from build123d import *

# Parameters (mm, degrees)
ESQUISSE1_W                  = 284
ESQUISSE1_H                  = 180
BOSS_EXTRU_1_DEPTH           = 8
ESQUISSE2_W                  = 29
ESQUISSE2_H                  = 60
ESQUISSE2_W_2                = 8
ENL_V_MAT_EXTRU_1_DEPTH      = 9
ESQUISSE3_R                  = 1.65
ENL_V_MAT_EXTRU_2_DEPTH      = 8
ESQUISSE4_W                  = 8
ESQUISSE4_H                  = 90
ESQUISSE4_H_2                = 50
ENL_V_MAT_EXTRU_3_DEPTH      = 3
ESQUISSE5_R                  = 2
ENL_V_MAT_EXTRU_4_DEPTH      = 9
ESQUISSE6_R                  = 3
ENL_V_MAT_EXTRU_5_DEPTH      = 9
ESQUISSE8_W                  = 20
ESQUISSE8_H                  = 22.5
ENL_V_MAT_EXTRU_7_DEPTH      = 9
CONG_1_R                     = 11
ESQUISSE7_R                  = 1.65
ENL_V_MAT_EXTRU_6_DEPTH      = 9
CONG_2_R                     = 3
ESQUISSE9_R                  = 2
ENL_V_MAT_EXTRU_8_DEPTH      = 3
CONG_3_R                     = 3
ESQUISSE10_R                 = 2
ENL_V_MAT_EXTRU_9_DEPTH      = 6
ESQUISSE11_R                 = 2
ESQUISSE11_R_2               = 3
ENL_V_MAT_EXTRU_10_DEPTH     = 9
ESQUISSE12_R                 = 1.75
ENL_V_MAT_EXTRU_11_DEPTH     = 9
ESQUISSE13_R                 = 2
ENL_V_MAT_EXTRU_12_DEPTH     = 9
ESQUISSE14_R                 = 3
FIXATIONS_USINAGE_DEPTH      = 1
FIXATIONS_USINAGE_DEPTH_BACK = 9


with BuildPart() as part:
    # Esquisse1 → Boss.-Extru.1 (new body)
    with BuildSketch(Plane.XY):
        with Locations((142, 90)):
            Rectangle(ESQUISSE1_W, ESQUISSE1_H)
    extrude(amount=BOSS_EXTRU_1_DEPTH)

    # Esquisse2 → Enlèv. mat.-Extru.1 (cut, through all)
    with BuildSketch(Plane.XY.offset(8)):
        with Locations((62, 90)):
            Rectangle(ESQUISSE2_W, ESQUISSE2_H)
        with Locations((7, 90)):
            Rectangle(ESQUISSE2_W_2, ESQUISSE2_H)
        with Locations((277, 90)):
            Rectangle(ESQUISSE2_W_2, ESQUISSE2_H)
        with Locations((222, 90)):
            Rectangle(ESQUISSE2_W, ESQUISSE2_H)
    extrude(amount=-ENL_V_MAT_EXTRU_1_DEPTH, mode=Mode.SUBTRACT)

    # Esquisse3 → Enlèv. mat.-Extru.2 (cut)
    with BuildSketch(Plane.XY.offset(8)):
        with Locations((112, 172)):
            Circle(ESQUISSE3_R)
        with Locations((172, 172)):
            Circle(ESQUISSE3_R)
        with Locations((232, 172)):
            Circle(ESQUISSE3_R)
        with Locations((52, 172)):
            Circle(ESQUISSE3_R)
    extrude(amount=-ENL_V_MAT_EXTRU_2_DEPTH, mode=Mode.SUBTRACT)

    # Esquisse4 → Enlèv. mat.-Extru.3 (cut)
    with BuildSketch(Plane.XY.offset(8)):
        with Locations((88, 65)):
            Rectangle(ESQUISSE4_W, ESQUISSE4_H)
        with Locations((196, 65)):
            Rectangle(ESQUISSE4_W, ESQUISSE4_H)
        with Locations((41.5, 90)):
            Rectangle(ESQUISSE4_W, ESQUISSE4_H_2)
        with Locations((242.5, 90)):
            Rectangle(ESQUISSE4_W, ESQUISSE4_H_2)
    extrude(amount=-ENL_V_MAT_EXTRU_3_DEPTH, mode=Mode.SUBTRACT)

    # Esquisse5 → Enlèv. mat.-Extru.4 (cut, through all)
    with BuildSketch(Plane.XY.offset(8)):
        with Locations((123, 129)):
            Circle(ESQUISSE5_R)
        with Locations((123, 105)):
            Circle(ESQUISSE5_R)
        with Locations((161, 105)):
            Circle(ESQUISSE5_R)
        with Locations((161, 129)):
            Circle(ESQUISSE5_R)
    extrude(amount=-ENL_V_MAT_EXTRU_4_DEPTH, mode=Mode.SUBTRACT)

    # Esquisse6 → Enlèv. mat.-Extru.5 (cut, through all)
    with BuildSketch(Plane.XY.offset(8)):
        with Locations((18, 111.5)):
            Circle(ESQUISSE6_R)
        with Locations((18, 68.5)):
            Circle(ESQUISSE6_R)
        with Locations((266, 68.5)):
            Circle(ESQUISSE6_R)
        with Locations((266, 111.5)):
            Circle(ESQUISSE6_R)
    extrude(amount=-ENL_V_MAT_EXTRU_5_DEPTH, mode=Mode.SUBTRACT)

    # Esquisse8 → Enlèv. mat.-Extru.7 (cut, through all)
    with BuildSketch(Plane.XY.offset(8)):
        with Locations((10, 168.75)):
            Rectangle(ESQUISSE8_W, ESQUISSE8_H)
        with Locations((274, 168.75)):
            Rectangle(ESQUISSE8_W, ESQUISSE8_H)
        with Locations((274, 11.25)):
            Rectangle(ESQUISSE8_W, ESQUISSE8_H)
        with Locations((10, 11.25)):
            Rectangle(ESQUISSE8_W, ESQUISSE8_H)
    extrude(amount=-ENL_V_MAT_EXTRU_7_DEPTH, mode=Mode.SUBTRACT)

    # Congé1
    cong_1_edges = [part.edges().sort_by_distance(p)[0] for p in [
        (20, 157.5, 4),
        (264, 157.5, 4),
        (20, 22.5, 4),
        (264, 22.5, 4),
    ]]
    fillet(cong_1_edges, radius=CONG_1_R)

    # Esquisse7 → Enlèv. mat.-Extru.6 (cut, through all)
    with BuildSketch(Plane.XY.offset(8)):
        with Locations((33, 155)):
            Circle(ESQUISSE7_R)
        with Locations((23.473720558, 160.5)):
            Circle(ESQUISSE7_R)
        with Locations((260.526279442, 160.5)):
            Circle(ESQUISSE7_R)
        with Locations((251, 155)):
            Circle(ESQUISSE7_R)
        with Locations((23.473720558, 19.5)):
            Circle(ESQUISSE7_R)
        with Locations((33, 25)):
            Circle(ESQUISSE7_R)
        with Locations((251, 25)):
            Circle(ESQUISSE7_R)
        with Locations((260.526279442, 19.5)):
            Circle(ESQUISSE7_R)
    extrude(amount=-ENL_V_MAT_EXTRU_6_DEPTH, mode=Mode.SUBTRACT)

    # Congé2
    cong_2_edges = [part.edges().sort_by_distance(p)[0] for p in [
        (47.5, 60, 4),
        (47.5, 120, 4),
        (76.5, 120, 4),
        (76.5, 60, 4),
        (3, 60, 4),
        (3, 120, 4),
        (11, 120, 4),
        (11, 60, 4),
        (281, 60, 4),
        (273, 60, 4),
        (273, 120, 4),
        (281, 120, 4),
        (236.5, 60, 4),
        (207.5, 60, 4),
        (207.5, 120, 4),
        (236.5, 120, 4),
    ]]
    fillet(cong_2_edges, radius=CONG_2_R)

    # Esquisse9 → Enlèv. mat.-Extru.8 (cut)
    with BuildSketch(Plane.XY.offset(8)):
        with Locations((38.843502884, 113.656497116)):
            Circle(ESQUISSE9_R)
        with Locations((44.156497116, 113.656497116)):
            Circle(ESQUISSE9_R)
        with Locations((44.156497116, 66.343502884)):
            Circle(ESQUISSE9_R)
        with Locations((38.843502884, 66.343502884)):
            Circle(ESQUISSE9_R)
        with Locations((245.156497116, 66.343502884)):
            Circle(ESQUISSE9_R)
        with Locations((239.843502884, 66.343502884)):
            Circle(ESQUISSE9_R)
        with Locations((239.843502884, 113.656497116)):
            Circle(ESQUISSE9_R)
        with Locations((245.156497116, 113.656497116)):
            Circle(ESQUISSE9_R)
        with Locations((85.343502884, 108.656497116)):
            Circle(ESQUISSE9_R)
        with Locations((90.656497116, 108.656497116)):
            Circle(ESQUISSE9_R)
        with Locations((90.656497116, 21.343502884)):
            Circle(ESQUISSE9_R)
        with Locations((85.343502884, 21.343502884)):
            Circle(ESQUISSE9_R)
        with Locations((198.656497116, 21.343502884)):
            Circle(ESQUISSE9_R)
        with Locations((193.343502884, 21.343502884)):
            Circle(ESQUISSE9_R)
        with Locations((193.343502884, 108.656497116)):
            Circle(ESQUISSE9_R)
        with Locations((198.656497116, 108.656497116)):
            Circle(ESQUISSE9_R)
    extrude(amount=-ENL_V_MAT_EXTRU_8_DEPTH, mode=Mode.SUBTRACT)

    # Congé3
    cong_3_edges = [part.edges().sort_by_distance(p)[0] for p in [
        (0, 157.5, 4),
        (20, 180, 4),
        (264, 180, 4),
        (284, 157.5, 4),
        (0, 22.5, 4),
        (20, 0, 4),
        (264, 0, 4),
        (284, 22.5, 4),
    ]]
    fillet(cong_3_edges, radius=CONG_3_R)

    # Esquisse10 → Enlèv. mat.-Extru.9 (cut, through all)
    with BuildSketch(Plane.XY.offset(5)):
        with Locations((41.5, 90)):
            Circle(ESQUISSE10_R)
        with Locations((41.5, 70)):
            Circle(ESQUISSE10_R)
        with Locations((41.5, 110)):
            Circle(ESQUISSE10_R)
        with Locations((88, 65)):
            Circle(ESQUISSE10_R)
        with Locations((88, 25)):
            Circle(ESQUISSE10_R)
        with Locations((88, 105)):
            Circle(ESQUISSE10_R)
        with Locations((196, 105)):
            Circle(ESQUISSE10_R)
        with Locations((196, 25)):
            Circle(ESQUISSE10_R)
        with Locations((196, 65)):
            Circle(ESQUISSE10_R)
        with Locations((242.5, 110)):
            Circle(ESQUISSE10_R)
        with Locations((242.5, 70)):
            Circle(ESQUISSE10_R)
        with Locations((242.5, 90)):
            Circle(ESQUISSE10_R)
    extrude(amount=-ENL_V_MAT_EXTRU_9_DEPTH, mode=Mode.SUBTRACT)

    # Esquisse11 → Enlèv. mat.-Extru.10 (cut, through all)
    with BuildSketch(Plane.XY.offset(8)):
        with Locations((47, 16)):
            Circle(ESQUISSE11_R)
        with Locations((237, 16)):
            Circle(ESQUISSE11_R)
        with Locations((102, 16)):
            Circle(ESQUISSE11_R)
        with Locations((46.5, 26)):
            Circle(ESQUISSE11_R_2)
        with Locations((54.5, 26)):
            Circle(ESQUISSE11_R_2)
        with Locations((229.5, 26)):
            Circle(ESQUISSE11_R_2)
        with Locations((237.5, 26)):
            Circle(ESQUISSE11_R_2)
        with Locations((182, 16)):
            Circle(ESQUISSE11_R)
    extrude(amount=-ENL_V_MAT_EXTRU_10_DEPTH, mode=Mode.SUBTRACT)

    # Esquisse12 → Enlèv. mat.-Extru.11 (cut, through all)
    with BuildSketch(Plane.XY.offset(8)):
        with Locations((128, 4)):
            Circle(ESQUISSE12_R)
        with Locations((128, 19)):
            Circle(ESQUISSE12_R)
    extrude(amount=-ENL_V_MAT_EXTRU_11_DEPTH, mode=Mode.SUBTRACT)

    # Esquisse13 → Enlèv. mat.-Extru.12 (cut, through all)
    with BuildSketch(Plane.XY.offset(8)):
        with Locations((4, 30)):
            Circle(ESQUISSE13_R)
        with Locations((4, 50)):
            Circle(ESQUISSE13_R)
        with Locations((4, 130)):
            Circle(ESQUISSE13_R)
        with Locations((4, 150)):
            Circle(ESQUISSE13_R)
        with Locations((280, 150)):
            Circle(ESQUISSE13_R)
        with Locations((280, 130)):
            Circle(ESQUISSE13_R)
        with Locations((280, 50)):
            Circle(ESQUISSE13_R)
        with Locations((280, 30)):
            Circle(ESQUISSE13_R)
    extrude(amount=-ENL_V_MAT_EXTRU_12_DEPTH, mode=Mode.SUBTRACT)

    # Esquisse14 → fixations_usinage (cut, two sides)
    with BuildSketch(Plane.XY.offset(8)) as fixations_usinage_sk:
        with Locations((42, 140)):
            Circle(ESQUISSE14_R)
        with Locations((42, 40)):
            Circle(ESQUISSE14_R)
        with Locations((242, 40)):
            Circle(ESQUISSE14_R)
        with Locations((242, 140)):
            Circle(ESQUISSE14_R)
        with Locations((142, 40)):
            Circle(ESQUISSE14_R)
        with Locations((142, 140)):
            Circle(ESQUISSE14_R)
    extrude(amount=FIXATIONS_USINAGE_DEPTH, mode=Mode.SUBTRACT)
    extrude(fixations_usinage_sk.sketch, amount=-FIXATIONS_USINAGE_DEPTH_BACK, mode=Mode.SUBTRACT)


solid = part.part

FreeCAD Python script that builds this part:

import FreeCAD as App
import Part
import Sketcher

V = App.Vector


def edges_at(feature, points):
    """Names of the edges that pass closest to the given points."""
    edges = feature.Shape.Edges
    near = lambda p: min(range(len(edges)), key=lambda i: edges[i].distToShape(Part.Vertex(*p))[0])
    return sorted({f"Edge{near(p) + 1}" for p in points})

doc = App.newDocument("Part")
body = doc.addObject("PartDesign::Body", "Body")

# Sketch on XY plane
sketch1 = body.newObject("Sketcher::SketchObject", "Sketch")
sketch1.AttachmentSupport = (doc.getObject("XY_Plane"), [""])
sketch1.MapMode = "FlatFace"
sketch1.addGeometry([
    Part.LineSegment(V(0, 180, 0), V(0, 0, 0)),
    Part.LineSegment(V(0, 0, 0), V(284, 0, 0)),
    Part.LineSegment(V(284, 0, 0), V(284, 180, 0)),
    Part.LineSegment(V(284, 180, 0), V(0, 180, 0)),
], False)
sketch1.addConstraint([
    Sketcher.Constraint("Coincident", 0, 2, 1, 1),
    Sketcher.Constraint("Coincident", 1, 2, 2, 1),
    Sketcher.Constraint("Coincident", 2, 2, 3, 1),
    Sketcher.Constraint("Coincident", 3, 2, 0, 1),
    Sketcher.Constraint("Vertical", 0),
    Sketcher.Constraint("Horizontal", 1),
    Sketcher.Constraint("Vertical", 2),
    Sketcher.Constraint("Horizontal", 3),
    Sketcher.Constraint("Coincident", 0, 2, -1, 1),
    Sketcher.Constraint("DistanceX", 1, 1, 1, 2, 284.0),
    Sketcher.Constraint("DistanceY", 0, 2, 0, 1, 180.0),
])
pad1 = body.newObject("PartDesign::Pad", "Pad")
pad1.Profile = sketch1
pad1.Length = 8

# Sketch on XY plane
sketch2 = body.newObject("Sketcher::SketchObject", "Sketch001")
sketch2.AttachmentSupport = (doc.getObject("XY_Plane"), [""])
sketch2.MapMode = "FlatFace"
sketch2.AttachmentOffset = App.Placement(V(0, 0, 8), App.Rotation())
sketch2.addGeometry([
    Part.LineSegment(V(48, 120, 0), V(48, 60, 0)),  # 0
    Part.LineSegment(V(48, 60, 0), V(76, 60, 0)),  # 1
    Part.LineSegment(V(76, 60, 0), V(76, 120, 0)),  # 2
    Part.LineSegment(V(76, 120, 0), V(48, 120, 0)),  # 3
    Part.LineSegment(V(3, 120, 0), V(3, 60, 0)),  # 4
    Part.LineSegment(V(3, 60, 0), V(11, 60, 0)),  # 5
    Part.LineSegment(V(11, 60, 0), V(11, 120, 0)),  # 6
    Part.LineSegment(V(11, 120, 0), V(3, 120, 0)),  # 7
    Part.LineSegment(V(273, 120, 0), V(273, 60, 0)),  # 8
    Part.LineSegment(V(273, 60, 0), V(281, 60, 0)),  # 9
    Part.LineSegment(V(281, 60, 0), V(281, 120, 0)),  # 10
    Part.LineSegment(V(281, 120, 0), V(273, 120, 0)),  # 11
    Part.LineSegment(V(208, 120, 0), V(208, 60, 0)),  # 12
    Part.LineSegment(V(208, 60, 0), V(236, 60, 0)),  # 13
    Part.LineSegment(V(236, 60, 0), V(236, 120, 0)),  # 14
    Part.LineSegment(V(236, 120, 0), V(208, 120, 0)),  # 15
], False)
sketch2.addConstraint([
    Sketcher.Constraint("Coincident", 0, 2, 1, 1),
    Sketcher.Constraint("Coincident", 1, 2, 2, 1),
    Sketcher.Constraint("Coincident", 2, 2, 3, 1),
    Sketcher.Constraint("Coincident", 3, 2, 0, 1),
    Sketcher.Constraint("Coincident", 4, 2, 5, 1),
    Sketcher.Constraint("Coincident", 5, 2, 6, 1),
    Sketcher.Constraint("Coincident", 6, 2, 7, 1),
    Sketcher.Constraint("Coincident", 7, 2, 4, 1),
    Sketcher.Constraint("Coincident", 8, 2, 9, 1),
    Sketcher.Constraint("Coincident", 9, 2, 10, 1),
    Sketcher.Constraint("Coincident", 10, 2, 11, 1),
    Sketcher.Constraint("Coincident", 11, 2, 8, 1),
    Sketcher.Constraint("Coincident", 12, 2, 13, 1),
    Sketcher.Constraint("Coincident", 13, 2, 14, 1),
    Sketcher.Constraint("Coincident", 14, 2, 15, 1),
    Sketcher.Constraint("Coincident", 15, 2, 12, 1),
    Sketcher.Constraint("Vertical", 0),
    Sketcher.Constraint("Horizontal", 1),
    Sketcher.Constraint("Vertical", 2),
    Sketcher.Constraint("Horizontal", 3),
    Sketcher.Constraint("Vertical", 4),
    Sketcher.Constraint("Horizontal", 5),
    Sketcher.Constraint("Vertical", 6),
    Sketcher.Constraint("Horizontal", 7),
    Sketcher.Constraint("Vertical", 8),
    Sketcher.Constraint("Horizontal", 9),
    Sketcher.Constraint("Vertical", 10),
    Sketcher.Constraint("Horizontal", 11),
    Sketcher.Constraint("Vertical", 12),
    Sketcher.Constraint("Horizontal", 13),
    Sketcher.Constraint("Vertical", 14),
    Sketcher.Constraint("Horizontal", 15),
    Sketcher.Constraint("Horizontal", 1, 2, 4, 2),
    Sketcher.Constraint("Horizontal", 3, 2, 6, 2),
    Sketcher.Constraint("Horizontal", 5, 2, 8, 2),
    Sketcher.Constraint("Horizontal", 7, 2, 10, 2),
    Sketcher.Constraint("Horizontal", 9, 2, 12, 2),
    Sketcher.Constraint("Horizontal", 11, 2, 14, 2),
    Sketcher.Constraint("Equal", 7, 9),
    Sketcher.Constraint("Equal", 3, 13),
    Sketcher.Constraint("DistanceX", 1, 1, 1, 2, 29.0),
    Sketcher.Constraint("DistanceX", 5, 1, 5, 2, 8.0),
    Sketcher.Constraint("DistanceY", 0, 2, 0, 1, 60.0),
    Sketcher.Constraint("DistanceY", -1, 1, 0, 2, 60.0),
    Sketcher.Constraint("DistanceX", -1, 1, 4, 2, 3.0),
    Sketcher.Constraint("DistanceX", -1, 1, 8, 2, 273.0),
    Sketcher.Constraint("DistanceX", 1, 2, 12, 2, 131.0),
    Sketcher.Constraint("DistanceX", -1, 1, 0, 2, 47.5),
])
pocket1 = body.newObject("PartDesign::Pocket", "Pocket")
pocket1.Profile = sketch2
pocket1.Type = "ThroughAll"

# Sketch on XY plane
sketch3 = body.newObject("Sketcher::SketchObject", "Sketch002")
sketch3.AttachmentSupport = (doc.getObject("XY_Plane"), [""])
sketch3.MapMode = "FlatFace"
sketch3.AttachmentOffset = App.Placement(V(0, 0, 8), App.Rotation())
sketch3.addGeometry([
    Part.Circle(V(112, 172, 0), V(0, 0, 1), 1.6),
    Part.Circle(V(172, 172, 0), V(0, 0, 1), 1.6),
    Part.Circle(V(232, 172, 0), V(0, 0, 1), 1.6),
    Part.Circle(V(52, 172, 0), V(0, 0, 1), 1.6),
], False)
sketch3.addConstraint([
    Sketcher.Constraint("Equal", 0, 1),
    Sketcher.Constraint("Equal", 1, 2),
    Sketcher.Constraint("Equal", 2, 3),
    Sketcher.Constraint("Horizontal", 0, 3, 1, 3),
    Sketcher.Constraint("Horizontal", 1, 3, 2, 3),
    Sketcher.Constraint("Horizontal", 2, 3, 3, 3),
    Sketcher.Constraint("Diameter", 0, 3.3),
    Sketcher.Constraint("DistanceX", -1, 1, 0, 3, 112.0),
    Sketcher.Constraint("DistanceY", -1, 1, 0, 3, 172.0),
    Sketcher.Constraint("DistanceX", -1, 1, 1, 3, 172.0),
    Sketcher.Constraint("DistanceX", -1, 1, 2, 3, 232.0),
    Sketcher.Constraint("DistanceX", -1, 1, 3, 3, 52.0),
])
pocket2 = body.newObject("PartDesign::Pocket", "Pocket001")
pocket2.Profile = sketch3
pocket2.Length = 8

# Sketch on XY plane
sketch4 = body.newObject("Sketcher::SketchObject", "Sketch003")
sketch4.AttachmentSupport = (doc.getObject("XY_Plane"), [""])
sketch4.MapMode = "FlatFace"
sketch4.AttachmentOffset = App.Placement(V(0, 0, 8), App.Rotation())
sketch4.addGeometry([
    Part.LineSegment(V(84, 110, 0), V(84, 20, 0)),  # 0
    Part.LineSegment(V(84, 20, 0), V(92, 20, 0)),  # 1
    Part.LineSegment(V(92, 20, 0), V(92, 110, 0)),  # 2
    Part.LineSegment(V(92, 110, 0), V(84, 110, 0)),  # 3
    Part.LineSegment(V(192, 110, 0), V(192, 20, 0)),  # 4
    Part.LineSegment(V(192, 20, 0), V(200, 20, 0)),  # 5
    Part.LineSegment(V(200, 20, 0), V(200, 110, 0)),  # 6
    Part.LineSegment(V(200, 110, 0), V(192, 110, 0)),  # 7
    Part.LineSegment(V(38, 115, 0), V(38, 65, 0)),  # 8
    Part.LineSegment(V(38, 65, 0), V(46, 65, 0)),  # 9
    Part.LineSegment(V(46, 65, 0), V(46, 115, 0)),  # 10
    Part.LineSegment(V(46, 115, 0), V(38, 115, 0)),  # 11
    Part.LineSegment(V(238, 115, 0), V(238, 65, 0)),  # 12
    Part.LineSegment(V(238, 65, 0), V(246, 65, 0)),  # 13
    Part.LineSegment(V(246, 65, 0), V(246, 115, 0)),  # 14
    Part.LineSegment(V(246, 115, 0), V(238, 115, 0)),  # 15
], False)
sketch4.addConstraint([
    Sketcher.Constraint("Coincident", 0, 2, 1, 1),
    Sketcher.Constraint("Coincident", 1, 2, 2, 1),
    Sketcher.Constraint("Coincident", 2, 2, 3, 1),
    Sketcher.Constraint("Coincident", 3, 2, 0, 1),
    Sketcher.Constraint("Coincident", 4, 2, 5, 1),
    Sketcher.Constraint("Coincident", 5, 2, 6, 1),
    Sketcher.Constraint("Coincident", 6, 2, 7, 1),
    Sketcher.Constraint("Coincident", 7, 2, 4, 1),
    Sketcher.Constraint("Coincident", 8, 2, 9, 1),
    Sketcher.Constraint("Coincident", 9, 2, 10, 1),
    Sketcher.Constraint("Coincident", 10, 2, 11, 1),
    Sketcher.Constraint("Coincident", 11, 2, 8, 1),
    Sketcher.Constraint("Coincident", 12, 2, 13, 1),
    Sketcher.Constraint("Coincident", 13, 2, 14, 1),
    Sketcher.Constraint("Coincident", 14, 2, 15, 1),
    Sketcher.Constraint("Coincident", 15, 2, 12, 1),
    Sketcher.Constraint("Vertical", 0),
    Sketcher.Constraint("Horizontal", 1),
    Sketcher.Constraint("Vertical", 2),
    Sketcher.Constraint("Horizontal", 3),
    Sketcher.Constraint("Vertical", 4),
    Sketcher.Constraint("Horizontal", 5),
    Sketcher.Constraint("Vertical", 6),
    Sketcher.Constraint("Horizontal", 7),
    Sketcher.Constraint("Vertical", 8),
    Sketcher.Constraint("Horizontal", 9),
    Sketcher.Constraint("Vertical", 10),
    Sketcher.Constraint("Horizontal", 11),
    Sketcher.Constraint("Vertical", 12),
    Sketcher.Constraint("Horizontal", 13),
    Sketcher.Constraint("Vertical", 14),
    Sketcher.Constraint("Horizontal", 15),
    Sketcher.Constraint("Horizontal", 1, 2, 4, 2),
    Sketcher.Constraint("Horizontal", 3, 2, 6, 2),
    Sketcher.Constraint("Horizontal", 9, 2, 12, 2),
    Sketcher.Constraint("Horizontal", 11, 2, 14, 2),
    Sketcher.Constraint("Equal", 3, 5),
    Sketcher.Constraint("Equal", 7, 9),
    Sketcher.Constraint("Equal", 11, 13),
    Sketcher.Constraint("DistanceX", 1, 1, 1, 2, 8.0),
    Sketcher.Constraint("DistanceY", 0, 2, 0, 1, 90.0),
    Sketcher.Constraint("DistanceY", 8, 2, 8, 1, 50.0),
    Sketcher.Constraint("DistanceX", -1, 1, 0, 2, 84.0),
    Sketcher.Constraint("DistanceY", -1, 1, 0, 2, 20.0),
    Sketcher.Constraint("DistanceX", -1, 1, 4, 2, 192.0),
    Sketcher.Constraint("DistanceY", -1, 1, 8, 2, 65.0),
    Sketcher.Constraint("DistanceX", -1, 1, 8, 2, 37.5),
    Sketcher.Constraint("DistanceX", -1, 1, 12, 2, 238.5),
])
pocket3 = body.newObject("PartDesign::Pocket", "Pocket002")
pocket3.Profile = sketch4
pocket3.Length = 3

# Sketch on XY plane
sketch5 = body.newObject("Sketcher::SketchObject", "Sketch004")
sketch5.AttachmentSupport = (doc.getObject("XY_Plane"), [""])
sketch5.MapMode = "FlatFace"
sketch5.AttachmentOffset = App.Placement(V(0, 0, 8), App.Rotation())
sketch5.addGeometry([
    Part.Circle(V(123, 129, 0), V(0, 0, 1), 2),
    Part.Circle(V(123, 105, 0), V(0, 0, 1), 2),
    Part.Circle(V(161, 105, 0), V(0, 0, 1), 2),
    Part.Circle(V(161, 129, 0), V(0, 0, 1), 2),
], False)
sketch5.addConstraint([
    Sketcher.Constraint("Equal", 0, 1),
    Sketcher.Constraint("Equal", 1, 2),
    Sketcher.Constraint("Equal", 2, 3),
    Sketcher.Constraint("Horizontal", 1, 3, 2, 3),
    Sketcher.Constraint("Horizontal", 0, 3, 3, 3),
    Sketcher.Constraint("Vertical", 0, 3, 1, 3),
    Sketcher.Constraint("Vertical", 2, 3, 3, 3),
    Sketcher.Constraint("Diameter", 0, 4.0),
    Sketcher.Constraint("DistanceX", -1, 1, 0, 3, 123.0),
    Sketcher.Constraint("DistanceY", -1, 1, 0, 3, 129.0),
    Sketcher.Constraint("DistanceY", -1, 1, 1, 3, 105.0),
    Sketcher.Constraint("DistanceX", -1, 1, 2, 3, 161.0),
])
pocket4 = body.newObject("PartDesign::Pocket", "Pocket003")
pocket4.Profile = sketch5
pocket4.Type = "ThroughAll"

# Sketch on XY plane
sketch6 = body.newObject("Sketcher::SketchObject", "Sketch005")
sketch6.AttachmentSupport = (doc.getObject("XY_Plane"), [""])
sketch6.MapMode = "FlatFace"
sketch6.AttachmentOffset = App.Placement(V(0, 0, 8), App.Rotation())
sketch6.addGeometry([
    Part.Circle(V(18, 111.5, 0), V(0, 0, 1), 3),
    Part.Circle(V(18, 68.5, 0), V(0, 0, 1), 3),
    Part.Circle(V(266, 68.5, 0), V(0, 0, 1), 3),
    Part.Circle(V(266, 111.5, 0), V(0, 0, 1), 3),
], False)
sketch6.addConstraint([
    Sketcher.Constraint("Equal", 0, 1),
    Sketcher.Constraint("Equal", 1, 2),
    Sketcher.Constraint("Equal", 2, 3),
    Sketcher.Constraint("Horizontal", 1, 3, 2, 3),
    Sketcher.Constraint("Horizontal", 0, 3, 3, 3),
    Sketcher.Constraint("Vertical", 0, 3, 1, 3),
    Sketcher.Constraint("Vertical", 2, 3, 3, 3),
    Sketcher.Constraint("Diameter", 0, 6.0),
    Sketcher.Constraint("DistanceX", -1, 1, 0, 3, 18.0),
    Sketcher.Constraint("DistanceX", -1, 1, 2, 3, 266.0),
    Sketcher.Constraint("DistanceY", 1, 3, 0, 3, 43.0),
    Sketcher.Constraint("DistanceY", -1, 1, 0, 3, 111.5),
])
pocket5 = body.newObject("PartDesign::Pocket", "Pocket004")
pocket5.Profile = sketch6
pocket5.Type = "ThroughAll"

# Sketch on XY plane
sketch7 = body.newObject("Sketcher::SketchObject", "Sketch006")
sketch7.AttachmentSupport = (doc.getObject("XY_Plane"), [""])
sketch7.MapMode = "FlatFace"
sketch7.AttachmentOffset = App.Placement(V(0, 0, 8), App.Rotation())
sketch7.addGeometry([
    Part.LineSegment(V(0, 180, 0), V(0, 158, 0)),  # 0
    Part.LineSegment(V(0, 158, 0), V(20, 158, 0)),  # 1
    Part.LineSegment(V(20, 158, 0), V(20, 180, 0)),  # 2
    Part.LineSegment(V(20, 180, 0), V(0, 180, 0)),  # 3
    Part.LineSegment(V(264, 180, 0), V(264, 158, 0)),  # 4
    Part.LineSegment(V(264, 158, 0), V(284, 158, 0)),  # 5
    Part.LineSegment(V(284, 158, 0), V(284, 180, 0)),  # 6
    Part.LineSegment(V(284, 180, 0), V(264, 180, 0)),  # 7
    Part.LineSegment(V(264, 22, 0), V(264, 0, 0)),  # 8
    Part.LineSegment(V(264, 0, 0), V(284, 0, 0)),  # 9
    Part.LineSegment(V(284, 0, 0), V(284, 22, 0)),  # 10
    Part.LineSegment(V(284, 22, 0), V(264, 22, 0)),  # 11
    Part.LineSegment(V(0, 22, 0), V(0, 0, 0)),  # 12
    Part.LineSegment(V(0, 0, 0), V(20, 0, 0)),  # 13
    Part.LineSegment(V(20, 0, 0), V(20, 22, 0)),  # 14
    Part.LineSegment(V(20, 22, 0), V(0, 22, 0)),  # 15
], False)
sketch7.addConstraint([
    Sketcher.Constraint("Coincident", 0, 2, 1, 1),
    Sketcher.Constraint("Coincident", 1, 2, 2, 1),
    Sketcher.Constraint("Coincident", 2, 2, 3, 1),
    Sketcher.Constraint("Coincident", 3, 2, 0, 1),
    Sketcher.Constraint("Coincident", 4, 2, 5, 1),
    Sketcher.Constraint("Coincident", 5, 2, 6, 1),
    Sketcher.Constraint("Coincident", 6, 2, 7, 1),
    Sketcher.Constraint("Coincident", 7, 2, 4, 1),
    Sketcher.Constraint("Coincident", 8, 2, 9, 1),
    Sketcher.Constraint("Coincident", 9, 2, 10, 1),
    Sketcher.Constraint("Coincident", 10, 2, 11, 1),
    Sketcher.Constraint("Coincident", 11, 2, 8, 1),
    Sketcher.Constraint("Coincident", 12, 2, 13, 1),
    Sketcher.Constraint("Coincident", 13, 2, 14, 1),
    Sketcher.Constraint("Coincident", 14, 2, 15, 1),
    Sketcher.Constraint("Coincident", 15, 2, 12, 1),
    Sketcher.Constraint("Vertical", 0),
    Sketcher.Constraint("Horizontal", 1),
    Sketcher.Constraint("Vertical", 2),
    Sketcher.Constraint("Horizontal", 3),
    Sketcher.Constraint("Vertical", 4),
    Sketcher.Constraint("Horizontal", 5),
    Sketcher.Constraint("Vertical", 6),
    Sketcher.Constraint("Horizontal", 7),
    Sketcher.Constraint("Vertical", 8),
    Sketcher.Constraint("Horizontal", 9),
    Sketcher.Constraint("Vertical", 10),
    Sketcher.Constraint("Horizontal", 11),
    Sketcher.Constraint("Vertical", 12),
    Sketcher.Constraint("Horizontal", 13),
    Sketcher.Constraint("Vertical", 14),
    Sketcher.Constraint("Horizontal", 15),
    Sketcher.Constraint("Coincident", 12, 2, -1, 1),
    Sketcher.Constraint("PointOnObject", 0, 2, -2),
    Sketcher.Constraint("PointOnObject", 8, 2, -1),
    Sketcher.Constraint("Horizontal", 1, 2, 4, 2),
    Sketcher.Constraint("Horizontal", 3, 2, 6, 2),
    Sketcher.Constraint("Horizontal", 11, 2, 14, 2),
    Sketcher.Constraint("Vertical", 7, 2, 8, 2),
    Sketcher.Constraint("Vertical", 6, 2, 9, 2),
    Sketcher.Constraint("Vertical", 2, 2, 13, 2),
    Sketcher.Constraint("Equal", 3, 5),
    Sketcher.Constraint("Equal", 6, 8),
    Sketcher.Constraint("DistanceX", 1, 1, 1, 2, 20.0),
    Sketcher.Constraint("DistanceY", 0, 2, 0, 1, 22.5),
    Sketcher.Constraint("DistanceY", -1, 1, 2, 2, 180.0),
    Sketcher.Constraint("DistanceX", -1, 1, 4, 2, 264.0),
])
pocket6 = body.newObject("PartDesign::Pocket", "Pocket005")
pocket6.Profile = sketch7
pocket6.Type = "ThroughAll"
doc.recompute()

fillet = body.newObject("PartDesign::Fillet", "Fillet")
fillet.Base = (pocket6, edges_at(pocket6, [
    (20, 157.5, 4),
    (264, 157.5, 4),
    (20, 22.5, 4),
    (264, 22.5, 4),
]))
fillet.Radius = 11

# Sketch on XY plane
sketch8 = body.newObject("Sketcher::SketchObject", "Sketch007")
sketch8.AttachmentSupport = (doc.getObject("XY_Plane"), [""])
sketch8.MapMode = "FlatFace"
sketch8.AttachmentOffset = App.Placement(V(0, 0, 8), App.Rotation())
sketch8.addGeometry([
    Part.Circle(V(33, 155, 0), V(0, 0, 1), 1.6),  # 0
    Part.Circle(V(23.5, 160.5, 0), V(0, 0, 1), 1.6),  # 1
    Part.Circle(V(260.5, 160.5, 0), V(0, 0, 1), 1.6),  # 2
    Part.Circle(V(251, 155, 0), V(0, 0, 1), 1.6),  # 3
    Part.Circle(V(23.5, 19.5, 0), V(0, 0, 1), 1.6),  # 4
    Part.Circle(V(33, 25, 0), V(0, 0, 1), 1.6),  # 5
    Part.Circle(V(251, 25, 0), V(0, 0, 1), 1.6),  # 6
    Part.Circle(V(260.5, 19.5, 0), V(0, 0, 1), 1.6),  # 7
], False)
sketch8.addConstraint([
    Sketcher.Constraint("Equal", 0, 1),
    Sketcher.Constraint("Equal", 1, 2),
    Sketcher.Constraint("Equal", 2, 3),
    Sketcher.Constraint("Equal", 3, 4),
    Sketcher.Constraint("Equal", 4, 5),
    Sketcher.Constraint("Equal", 5, 6),
    Sketcher.Constraint("Equal", 6, 7),
    Sketcher.Constraint("Horizontal", 1, 3, 2, 3),
    Sketcher.Constraint("Horizontal", 0, 3, 3, 3),
    Sketcher.Constraint("Horizontal", 5, 3, 6, 3),
    Sketcher.Constraint("Horizontal", 4, 3, 7, 3),
    Sketcher.Constraint("Vertical", 1, 3, 4, 3),
    Sketcher.Constraint("Vertical", 0, 3, 5, 3),
    Sketcher.Constraint("Vertical", 3, 3, 6, 3),
    Sketcher.Constraint("Vertical", 2, 3, 7, 3),
    Sketcher.Constraint("Diameter", 0, 3.3),
    Sketcher.Constraint("DistanceX", -1, 1, 0, 3, 33.0),
    Sketcher.Constraint("DistanceY", -1, 1, 0, 3, 155.0),
    Sketcher.Constraint("DistanceX", -1, 1, 3, 3, 251.0),
    Sketcher.Constraint("DistanceY", -1, 1, 5, 3, 25.0),
    Sketcher.Constraint("DistanceY", 4, 3, 1, 3, 141.0),
    Sketcher.Constraint("DistanceY", -1, 1, 1, 3, 160.5),
    Sketcher.Constraint("DistanceX", -1, 1, 1, 3, 23.473721),
    Sketcher.Constraint("DistanceX", -1, 1, 2, 3, 260.526279),
])
pocket7 = body.newObject("PartDesign::Pocket", "Pocket006")
pocket7.Profile = sketch8
pocket7.Type = "ThroughAll"
doc.recompute()

fillet2 = body.newObject("PartDesign::Fillet", "Fillet001")
fillet2.Base = (pocket7, edges_at(pocket7, [
    (47.5, 60, 4),
    (47.5, 120, 4),
    (76.5, 120, 4),
    (76.5, 60, 4),
    (3, 60, 4),
    (3, 120, 4),
    (11, 120, 4),
    (11, 60, 4),
    (281, 60, 4),
    (273, 60, 4),
    (273, 120, 4),
    (281, 120, 4),
    (236.5, 60, 4),
    (207.5, 60, 4),
    (207.5, 120, 4),
    (236.5, 120, 4),
]))
fillet2.Radius = 3

# Sketch on XY plane
sketch9 = body.newObject("Sketcher::SketchObject", "Sketch008")
sketch9.AttachmentSupport = (doc.getObject("XY_Plane"), [""])
sketch9.MapMode = "FlatFace"
sketch9.AttachmentOffset = App.Placement(V(0, 0, 8), App.Rotation())
sketch9.addGeometry([
    Part.Circle(V(38.8, 113.7, 0), V(0, 0, 1), 2),  # 0
    Part.Circle(V(44.2, 113.7, 0), V(0, 0, 1), 2),  # 1
    Part.Circle(V(44.2, 66.3, 0), V(0, 0, 1), 2),  # 2
    Part.Circle(V(38.8, 66.3, 0), V(0, 0, 1), 2),  # 3
    Part.Circle(V(245.2, 66.3, 0), V(0, 0, 1), 2),  # 4
    Part.Circle(V(239.8, 66.3, 0), V(0, 0, 1), 2),  # 5
    Part.Circle(V(239.8, 113.7, 0), V(0, 0, 1), 2),  # 6
    Part.Circle(V(245.2, 113.7, 0), V(0, 0, 1), 2),  # 7
    Part.Circle(V(85.3, 108.7, 0), V(0, 0, 1), 2),  # 8
    Part.Circle(V(90.7, 108.7, 0), V(0, 0, 1), 2),  # 9
    Part.Circle(V(90.7, 21.3, 0), V(0, 0, 1), 2),  # 10
    Part.Circle(V(85.3, 21.3, 0), V(0, 0, 1), 2),  # 11
    Part.Circle(V(198.7, 21.3, 0), V(0, 0, 1), 2),  # 12
    Part.Circle(V(193.3, 21.3, 0), V(0, 0, 1), 2),  # 13
    Part.Circle(V(193.3, 108.7, 0), V(0, 0, 1), 2),  # 14
    Part.Circle(V(198.7, 108.7, 0), V(0, 0, 1), 2),  # 15
], False)
sketch9.addConstraint([
    Sketcher.Constraint("Equal", 0, 1),
    Sketcher.Constraint("Equal", 1, 2),
    Sketcher.Constraint("Equal", 2, 3),
    Sketcher.Constraint("Equal", 3, 4),
    Sketcher.Constraint("Equal", 4, 5),
    Sketcher.Constraint("Equal", 5, 6),
    Sketcher.Constraint("Equal", 6, 7),
    Sketcher.Constraint("Equal", 7, 8),
    Sketcher.Constraint("Equal", 8, 9),
    Sketcher.Constraint("Equal", 9, 10),
    Sketcher.Constraint("Equal", 10, 11),
    Sketcher.Constraint("Equal", 11, 12),
    Sketcher.Constraint("Equal", 12, 13),
    Sketcher.Constraint("Equal", 13, 14),
    Sketcher.Constraint("Equal", 14, 15),
    Sketcher.Constraint("Horizontal", 0, 3, 1, 3),
    Sketcher.Constraint("Horizontal", 2, 3, 3, 3),
    Sketcher.Constraint("Horizontal", 3, 3, 4, 3),
    Sketcher.Constraint("Horizontal", 4, 3, 5, 3),
    Sketcher.Constraint("Horizontal", 1, 3, 6, 3),
    Sketcher.Constraint("Horizontal", 6, 3, 7, 3),
    Sketcher.Constraint("Horizontal", 8, 3, 9, 3),
    Sketcher.Constraint("Horizontal", 10, 3, 11, 3),
    Sketcher.Constraint("Horizontal", 11, 3, 12, 3),
    Sketcher.Constraint("Horizontal", 12, 3, 13, 3),
    Sketcher.Constraint("Horizontal", 9, 3, 14, 3),
    Sketcher.Constraint("Horizontal", 14, 3, 15, 3),
    Sketcher.Constraint("Vertical", 1, 3, 2, 3),
    Sketcher.Constraint("Vertical", 0, 3, 3, 3),
    Sketcher.Constraint("Vertical", 5, 3, 6, 3),
    Sketcher.Constraint("Vertical", 4, 3, 7, 3),
    Sketcher.Constraint("Vertical", 9, 3, 10, 3),
    Sketcher.Constraint("Vertical", 8, 3, 11, 3),
    Sketcher.Constraint("Vertical", 13, 3, 14, 3),
    Sketcher.Constraint("Vertical", 12, 3, 15, 3),
    Sketcher.Constraint("Diameter", 0, 4.0),
    Sketcher.Constraint("DistanceX", 2, 3, 4, 3, 201.0),
    Sketcher.Constraint("DistanceX", 3, 3, 5, 3, 201.0),
    Sketcher.Constraint("DistanceY", 8, 3, 1, 3, 5.0),
    Sketcher.Constraint("DistanceY", 10, 3, 2, 3, 45.0),
    Sketcher.Constraint("DistanceX", 10, 3, 12, 3, 108.0),
    Sketcher.Constraint("DistanceX", 0, 3, 8, 3, 46.5),
    Sketcher.Constraint("DistanceX", 1, 3, 9, 3, 46.5),
    Sketcher.Constraint("DistanceX", 13, 3, 5, 3, 46.5),
    Sketcher.Constraint("DistanceX", -1, 1, 0, 3, 38.843503),
    Sketcher.Constraint("DistanceY", -1, 1, 0, 3, 113.656497),
    Sketcher.Constraint("DistanceX", -1, 1, 1, 3, 44.156497),
    Sketcher.Constraint("DistanceY", -1, 1, 2, 3, 66.343503),
])
pocket8 = body.newObject("PartDesign::Pocket", "Pocket007")
pocket8.Profile = sketch9
pocket8.Length = 3
doc.recompute()

fillet3 = body.newObject("PartDesign::Fillet", "Fillet002")
fillet3.Base = (pocket8, edges_at(pocket8, [
    (0, 157.5, 4),
    (20, 180, 4),
    (264, 180, 4),
    (284, 157.5, 4),
    (0, 22.5, 4),
    (20, 0, 4),
    (264, 0, 4),
    (284, 22.5, 4),
]))
fillet3.Radius = 3

# Sketch on XY plane
sketch10 = body.newObject("Sketcher::SketchObject", "Sketch009")
sketch10.AttachmentSupport = (doc.getObject("XY_Plane"), [""])
sketch10.MapMode = "FlatFace"
sketch10.AttachmentOffset = App.Placement(V(0, 0, 5), App.Rotation())
sketch10.addGeometry([
    Part.Circle(V(41.5, 90, 0), V(0, 0, 1), 2),  # 0
    Part.Circle(V(41.5, 70, 0), V(0, 0, 1), 2),  # 1
    Part.Circle(V(41.5, 110, 0), V(0, 0, 1), 2),  # 2
    Part.Circle(V(88, 65, 0), V(0, 0, 1), 2),  # 3
    Part.Circle(V(88, 25, 0), V(0, 0, 1), 2),  # 4
    Part.Circle(V(88, 105, 0), V(0, 0, 1), 2),  # 5
    Part.Circle(V(196, 105, 0), V(0, 0, 1), 2),  # 6
    Part.Circle(V(196, 25, 0), V(0, 0, 1), 2),  # 7
    Part.Circle(V(196, 65, 0), V(0, 0, 1), 2),  # 8
    Part.Circle(V(242.5, 110, 0), V(0, 0, 1), 2),  # 9
    Part.Circle(V(242.5, 70, 0), V(0, 0, 1), 2),  # 10
    Part.Circle(V(242.5, 90, 0), V(0, 0, 1), 2),  # 11
], False)
sketch10.addConstraint([
    Sketcher.Constraint("Equal", 0, 1),
    Sketcher.Constraint("Equal", 1, 2),
    Sketcher.Constraint("Equal", 2, 3),
    Sketcher.Constraint("Equal", 3, 4),
    Sketcher.Constraint("Equal", 4, 5),
    Sketcher.Constraint("Equal", 5, 6),
    Sketcher.Constraint("Equal", 6, 7),
    Sketcher.Constraint("Equal", 7, 8),
    Sketcher.Constraint("Equal", 8, 9),
    Sketcher.Constraint("Equal", 9, 10),
    Sketcher.Constraint("Equal", 10, 11),
    Sketcher.Constraint("Horizontal", 5, 3, 6, 3),
    Sketcher.Constraint("Horizontal", 4, 3, 7, 3),
    Sketcher.Constraint("Horizontal", 3, 3, 8, 3),
    Sketcher.Constraint("Horizontal", 2, 3, 9, 3),
    Sketcher.Constraint("Horizontal", 1, 3, 10, 3),
    Sketcher.Constraint("Horizontal", 0, 3, 11, 3),
    Sketcher.Constraint("Vertical", 0, 3, 1, 3),
    Sketcher.Constraint("Vertical", 1, 3, 2, 3),
    Sketcher.Constraint("Vertical", 3, 3, 4, 3),
    Sketcher.Constraint("Vertical", 4, 3, 5, 3),
    Sketcher.Constraint("Vertical", 6, 3, 7, 3),
    Sketcher.Constraint("Vertical", 7, 3, 8, 3),
    Sketcher.Constraint("Vertical", 9, 3, 10, 3),
    Sketcher.Constraint("Vertical", 10, 3, 11, 3),
    Sketcher.Constraint("Diameter", 0, 4.0),
    Sketcher.Constraint("DistanceY", -1, 1, 0, 3, 90.0),
    Sketcher.Constraint("DistanceY", -1, 1, 1, 3, 70.0),
    Sketcher.Constraint("DistanceY", -1, 1, 2, 3, 110.0),
    Sketcher.Constraint("DistanceX", -1, 1, 3, 3, 88.0),
    Sketcher.Constraint("DistanceY", -1, 1, 3, 3, 65.0),
    Sketcher.Constraint("DistanceY", -1, 1, 4, 3, 25.0),
    Sketcher.Constraint("DistanceY", -1, 1, 5, 3, 105.0),
    Sketcher.Constraint("DistanceX", -1, 1, 6, 3, 196.0),
    Sketcher.Constraint("DistanceX", -1, 1, 0, 3, 41.5),
    Sketcher.Constraint("DistanceX", -1, 1, 9, 3, 242.5),
])
pocket9 = body.newObject("PartDesign::Pocket", "Pocket008")
pocket9.Profile = sketch10
pocket9.Type = "ThroughAll"

# Sketch on XY plane
sketch11 = body.newObject("Sketcher::SketchObject", "Sketch010")
sketch11.AttachmentSupport = (doc.getObject("XY_Plane"), [""])
sketch11.MapMode = "FlatFace"
sketch11.AttachmentOffset = App.Placement(V(0, 0, 8), App.Rotation())
sketch11.addGeometry([
    Part.Circle(V(47, 16, 0), V(0, 0, 1), 2),  # 0
    Part.Circle(V(237, 16, 0), V(0, 0, 1), 2),  # 1
    Part.Circle(V(102, 16, 0), V(0, 0, 1), 2),  # 2
    Part.Circle(V(46.5, 26, 0), V(0, 0, 1), 3),  # 3
    Part.Circle(V(54.5, 26, 0), V(0, 0, 1), 3),  # 4
    Part.Circle(V(229.5, 26, 0), V(0, 0, 1), 3),  # 5
    Part.Circle(V(237.5, 26, 0), V(0, 0, 1), 3),  # 6
    Part.Circle(V(182, 16, 0), V(0, 0, 1), 2),  # 7
], False)
sketch11.addConstraint([
    Sketcher.Constraint("Equal", 0, 1),
    Sketcher.Constraint("Equal", 1, 2),
    Sketcher.Constraint("Equal", 3, 4),
    Sketcher.Constraint("Equal", 4, 5),
    Sketcher.Constraint("Equal", 5, 6),
    Sketcher.Constraint("Equal", 2, 7),
    Sketcher.Constraint("Horizontal", 0, 3, 1, 3),
    Sketcher.Constraint("Horizontal", 1, 3, 2, 3),
    Sketcher.Constraint("Horizontal", 3, 3, 4, 3),
    Sketcher.Constraint("Horizontal", 4, 3, 5, 3),
    Sketcher.Constraint("Horizontal", 5, 3, 6, 3),
    Sketcher.Constraint("Horizontal", 2, 3, 7, 3),
    Sketcher.Constraint("Diameter", 0, 4.0),
    Sketcher.Constraint("Diameter", 3, 6.0),
    Sketcher.Constraint("DistanceX", -1, 1, 0, 3, 47.0),
    Sketcher.Constraint("DistanceY", -1, 1, 0, 3, 16.0),
    Sketcher.Constraint("DistanceX", -1, 1, 1, 3, 237.0),
    Sketcher.Constraint("DistanceX", -1, 1, 2, 3, 102.0),
    Sketcher.Constraint("DistanceY", -1, 1, 3, 3, 26.0),
    Sketcher.Constraint("DistanceX", -1, 1, 7, 3, 182.0),
    Sketcher.Constraint("DistanceX", 3, 3, 4, 3, 8.0),
    Sketcher.Constraint("DistanceX", 4, 3, 5, 3, 175.0),
    Sketcher.Constraint("DistanceX", 5, 3, 6, 3, 8.0),
    Sketcher.Constraint("DistanceX", -1, 1, 3, 3, 46.5),
])
pocket10 = body.newObject("PartDesign::Pocket", "Pocket009")
pocket10.Profile = sketch11
pocket10.Type = "ThroughAll"

# Sketch on XY plane
sketch12 = body.newObject("Sketcher::SketchObject", "Sketch011")
sketch12.AttachmentSupport = (doc.getObject("XY_Plane"), [""])
sketch12.MapMode = "FlatFace"
sketch12.AttachmentOffset = App.Placement(V(0, 0, 8), App.Rotation())
sketch12.addGeometry([
    Part.Circle(V(128, 4, 0), V(0, 0, 1), 1.8),
    Part.Circle(V(128, 19, 0), V(0, 0, 1), 1.8),
], False)
sketch12.addConstraint([
    Sketcher.Constraint("Equal", 0, 1),
    Sketcher.Constraint("Vertical", 0, 3, 1, 3),
    Sketcher.Constraint("Diameter", 0, 3.5),
    Sketcher.Constraint("DistanceX", -1, 1, 0, 3, 128.0),
    Sketcher.Constraint("DistanceY", -1, 1, 0, 3, 4.0),
    Sketcher.Constraint("DistanceY", -1, 1, 1, 3, 19.0),
])
pocket11 = body.newObject("PartDesign::Pocket", "Pocket010")
pocket11.Profile = sketch12
pocket11.Type = "ThroughAll"

# Sketch on XY plane
sketch13 = body.newObject("Sketcher::SketchObject", "Sketch012")
sketch13.AttachmentSupport = (doc.getObject("XY_Plane"), [""])
sketch13.MapMode = "FlatFace"
sketch13.AttachmentOffset = App.Placement(V(0, 0, 8), App.Rotation())
sketch13.addGeometry([
    Part.Circle(V(4, 30, 0), V(0, 0, 1), 2),  # 0
    Part.Circle(V(4, 50, 0), V(0, 0, 1), 2),  # 1
    Part.Circle(V(4, 130, 0), V(0, 0, 1), 2),  # 2
    Part.Circle(V(4, 150, 0), V(0, 0, 1), 2),  # 3
    Part.Circle(V(280, 150, 0), V(0, 0, 1), 2),  # 4
    Part.Circle(V(280, 130, 0), V(0, 0, 1), 2),  # 5
    Part.Circle(V(280, 50, 0), V(0, 0, 1), 2),  # 6
    Part.Circle(V(280, 30, 0), V(0, 0, 1), 2),  # 7
], False)
sketch13.addConstraint([
    Sketcher.Constraint("Equal", 0, 1),
    Sketcher.Constraint("Equal", 1, 2),
    Sketcher.Constraint("Equal", 2, 3),
    Sketcher.Constraint("Equal", 3, 4),
    Sketcher.Constraint("Equal", 4, 5),
    Sketcher.Constraint("Equal", 5, 6),
    Sketcher.Constraint("Equal", 6, 7),
    Sketcher.Constraint("Horizontal", 3, 3, 4, 3),
    Sketcher.Constraint("Horizontal", 2, 3, 5, 3),
    Sketcher.Constraint("Horizontal", 1, 3, 6, 3),
    Sketcher.Constraint("Horizontal", 0, 3, 7, 3),
    Sketcher.Constraint("Vertical", 0, 3, 1, 3),
    Sketcher.Constraint("Vertical", 1, 3, 2, 3),
    Sketcher.Constraint("Vertical", 2, 3, 3, 3),
    Sketcher.Constraint("Vertical", 4, 3, 5, 3),
    Sketcher.Constraint("Vertical", 5, 3, 6, 3),
    Sketcher.Constraint("Vertical", 6, 3, 7, 3),
    Sketcher.Constraint("Diameter", 0, 4.0),
    Sketcher.Constraint("DistanceX", -1, 1, 0, 3, 4.0),
    Sketcher.Constraint("DistanceY", -1, 1, 0, 3, 30.0),
    Sketcher.Constraint("DistanceY", -1, 1, 1, 3, 50.0),
    Sketcher.Constraint("DistanceY", -1, 1, 2, 3, 130.0),
    Sketcher.Constraint("DistanceY", -1, 1, 3, 3, 150.0),
    Sketcher.Constraint("DistanceX", -1, 1, 4, 3, 280.0),
])
pocket12 = body.newObject("PartDesign::Pocket", "Pocket011")
pocket12.Profile = sketch13
pocket12.Type = "ThroughAll"

# Sketch on XY plane
sketch14 = body.newObject("Sketcher::SketchObject", "Sketch013")
sketch14.AttachmentSupport = (doc.getObject("XY_Plane"), [""])
sketch14.MapMode = "FlatFace"
sketch14.AttachmentOffset = App.Placement(V(0, 0, 8), App.Rotation())
sketch14.addGeometry([
    Part.Circle(V(42, 140, 0), V(0, 0, 1), 3),  # 0
    Part.Circle(V(42, 40, 0), V(0, 0, 1), 3),  # 1
    Part.Circle(V(242, 40, 0), V(0, 0, 1), 3),  # 2
    Part.Circle(V(242, 140, 0), V(0, 0, 1), 3),  # 3
    Part.Circle(V(142, 40, 0), V(0, 0, 1), 3),  # 4
    Part.Circle(V(142, 140, 0), V(0, 0, 1), 3),  # 5
], False)
sketch14.addConstraint([
    Sketcher.Constraint("Equal", 0, 1),
    Sketcher.Constraint("Equal", 1, 2),
    Sketcher.Constraint("Equal", 2, 3),
    Sketcher.Constraint("Equal", 3, 4),
    Sketcher.Constraint("Equal", 4, 5),
    Sketcher.Constraint("Horizontal", 1, 3, 2, 3),
    Sketcher.Constraint("Horizontal", 0, 3, 3, 3),
    Sketcher.Constraint("Horizontal", 2, 3, 4, 3),
    Sketcher.Constraint("Horizontal", 3, 3, 5, 3),
    Sketcher.Constraint("Vertical", 0, 3, 1, 3),
    Sketcher.Constraint("Vertical", 2, 3, 3, 3),
    Sketcher.Constraint("Vertical", 4, 3, 5, 3),
    Sketcher.Constraint("Diameter", 0, 6.0),
    Sketcher.Constraint("DistanceX", -1, 1, 0, 3, 42.0),
    Sketcher.Constraint("DistanceY", -1, 1, 0, 3, 140.0),
    Sketcher.Constraint("DistanceY", -1, 1, 1, 3, 40.0),
    Sketcher.Constraint("DistanceX", -1, 1, 2, 3, 242.0),
    Sketcher.Constraint("DistanceX", -1, 1, 4, 3, 142.0),
])
pocket13 = body.newObject("PartDesign::Pocket", "Pocket012")
pocket13.Profile = sketch14
pocket13.Type = "ThroughAll"
pocket13.Midplane = True

doc.recompute()
